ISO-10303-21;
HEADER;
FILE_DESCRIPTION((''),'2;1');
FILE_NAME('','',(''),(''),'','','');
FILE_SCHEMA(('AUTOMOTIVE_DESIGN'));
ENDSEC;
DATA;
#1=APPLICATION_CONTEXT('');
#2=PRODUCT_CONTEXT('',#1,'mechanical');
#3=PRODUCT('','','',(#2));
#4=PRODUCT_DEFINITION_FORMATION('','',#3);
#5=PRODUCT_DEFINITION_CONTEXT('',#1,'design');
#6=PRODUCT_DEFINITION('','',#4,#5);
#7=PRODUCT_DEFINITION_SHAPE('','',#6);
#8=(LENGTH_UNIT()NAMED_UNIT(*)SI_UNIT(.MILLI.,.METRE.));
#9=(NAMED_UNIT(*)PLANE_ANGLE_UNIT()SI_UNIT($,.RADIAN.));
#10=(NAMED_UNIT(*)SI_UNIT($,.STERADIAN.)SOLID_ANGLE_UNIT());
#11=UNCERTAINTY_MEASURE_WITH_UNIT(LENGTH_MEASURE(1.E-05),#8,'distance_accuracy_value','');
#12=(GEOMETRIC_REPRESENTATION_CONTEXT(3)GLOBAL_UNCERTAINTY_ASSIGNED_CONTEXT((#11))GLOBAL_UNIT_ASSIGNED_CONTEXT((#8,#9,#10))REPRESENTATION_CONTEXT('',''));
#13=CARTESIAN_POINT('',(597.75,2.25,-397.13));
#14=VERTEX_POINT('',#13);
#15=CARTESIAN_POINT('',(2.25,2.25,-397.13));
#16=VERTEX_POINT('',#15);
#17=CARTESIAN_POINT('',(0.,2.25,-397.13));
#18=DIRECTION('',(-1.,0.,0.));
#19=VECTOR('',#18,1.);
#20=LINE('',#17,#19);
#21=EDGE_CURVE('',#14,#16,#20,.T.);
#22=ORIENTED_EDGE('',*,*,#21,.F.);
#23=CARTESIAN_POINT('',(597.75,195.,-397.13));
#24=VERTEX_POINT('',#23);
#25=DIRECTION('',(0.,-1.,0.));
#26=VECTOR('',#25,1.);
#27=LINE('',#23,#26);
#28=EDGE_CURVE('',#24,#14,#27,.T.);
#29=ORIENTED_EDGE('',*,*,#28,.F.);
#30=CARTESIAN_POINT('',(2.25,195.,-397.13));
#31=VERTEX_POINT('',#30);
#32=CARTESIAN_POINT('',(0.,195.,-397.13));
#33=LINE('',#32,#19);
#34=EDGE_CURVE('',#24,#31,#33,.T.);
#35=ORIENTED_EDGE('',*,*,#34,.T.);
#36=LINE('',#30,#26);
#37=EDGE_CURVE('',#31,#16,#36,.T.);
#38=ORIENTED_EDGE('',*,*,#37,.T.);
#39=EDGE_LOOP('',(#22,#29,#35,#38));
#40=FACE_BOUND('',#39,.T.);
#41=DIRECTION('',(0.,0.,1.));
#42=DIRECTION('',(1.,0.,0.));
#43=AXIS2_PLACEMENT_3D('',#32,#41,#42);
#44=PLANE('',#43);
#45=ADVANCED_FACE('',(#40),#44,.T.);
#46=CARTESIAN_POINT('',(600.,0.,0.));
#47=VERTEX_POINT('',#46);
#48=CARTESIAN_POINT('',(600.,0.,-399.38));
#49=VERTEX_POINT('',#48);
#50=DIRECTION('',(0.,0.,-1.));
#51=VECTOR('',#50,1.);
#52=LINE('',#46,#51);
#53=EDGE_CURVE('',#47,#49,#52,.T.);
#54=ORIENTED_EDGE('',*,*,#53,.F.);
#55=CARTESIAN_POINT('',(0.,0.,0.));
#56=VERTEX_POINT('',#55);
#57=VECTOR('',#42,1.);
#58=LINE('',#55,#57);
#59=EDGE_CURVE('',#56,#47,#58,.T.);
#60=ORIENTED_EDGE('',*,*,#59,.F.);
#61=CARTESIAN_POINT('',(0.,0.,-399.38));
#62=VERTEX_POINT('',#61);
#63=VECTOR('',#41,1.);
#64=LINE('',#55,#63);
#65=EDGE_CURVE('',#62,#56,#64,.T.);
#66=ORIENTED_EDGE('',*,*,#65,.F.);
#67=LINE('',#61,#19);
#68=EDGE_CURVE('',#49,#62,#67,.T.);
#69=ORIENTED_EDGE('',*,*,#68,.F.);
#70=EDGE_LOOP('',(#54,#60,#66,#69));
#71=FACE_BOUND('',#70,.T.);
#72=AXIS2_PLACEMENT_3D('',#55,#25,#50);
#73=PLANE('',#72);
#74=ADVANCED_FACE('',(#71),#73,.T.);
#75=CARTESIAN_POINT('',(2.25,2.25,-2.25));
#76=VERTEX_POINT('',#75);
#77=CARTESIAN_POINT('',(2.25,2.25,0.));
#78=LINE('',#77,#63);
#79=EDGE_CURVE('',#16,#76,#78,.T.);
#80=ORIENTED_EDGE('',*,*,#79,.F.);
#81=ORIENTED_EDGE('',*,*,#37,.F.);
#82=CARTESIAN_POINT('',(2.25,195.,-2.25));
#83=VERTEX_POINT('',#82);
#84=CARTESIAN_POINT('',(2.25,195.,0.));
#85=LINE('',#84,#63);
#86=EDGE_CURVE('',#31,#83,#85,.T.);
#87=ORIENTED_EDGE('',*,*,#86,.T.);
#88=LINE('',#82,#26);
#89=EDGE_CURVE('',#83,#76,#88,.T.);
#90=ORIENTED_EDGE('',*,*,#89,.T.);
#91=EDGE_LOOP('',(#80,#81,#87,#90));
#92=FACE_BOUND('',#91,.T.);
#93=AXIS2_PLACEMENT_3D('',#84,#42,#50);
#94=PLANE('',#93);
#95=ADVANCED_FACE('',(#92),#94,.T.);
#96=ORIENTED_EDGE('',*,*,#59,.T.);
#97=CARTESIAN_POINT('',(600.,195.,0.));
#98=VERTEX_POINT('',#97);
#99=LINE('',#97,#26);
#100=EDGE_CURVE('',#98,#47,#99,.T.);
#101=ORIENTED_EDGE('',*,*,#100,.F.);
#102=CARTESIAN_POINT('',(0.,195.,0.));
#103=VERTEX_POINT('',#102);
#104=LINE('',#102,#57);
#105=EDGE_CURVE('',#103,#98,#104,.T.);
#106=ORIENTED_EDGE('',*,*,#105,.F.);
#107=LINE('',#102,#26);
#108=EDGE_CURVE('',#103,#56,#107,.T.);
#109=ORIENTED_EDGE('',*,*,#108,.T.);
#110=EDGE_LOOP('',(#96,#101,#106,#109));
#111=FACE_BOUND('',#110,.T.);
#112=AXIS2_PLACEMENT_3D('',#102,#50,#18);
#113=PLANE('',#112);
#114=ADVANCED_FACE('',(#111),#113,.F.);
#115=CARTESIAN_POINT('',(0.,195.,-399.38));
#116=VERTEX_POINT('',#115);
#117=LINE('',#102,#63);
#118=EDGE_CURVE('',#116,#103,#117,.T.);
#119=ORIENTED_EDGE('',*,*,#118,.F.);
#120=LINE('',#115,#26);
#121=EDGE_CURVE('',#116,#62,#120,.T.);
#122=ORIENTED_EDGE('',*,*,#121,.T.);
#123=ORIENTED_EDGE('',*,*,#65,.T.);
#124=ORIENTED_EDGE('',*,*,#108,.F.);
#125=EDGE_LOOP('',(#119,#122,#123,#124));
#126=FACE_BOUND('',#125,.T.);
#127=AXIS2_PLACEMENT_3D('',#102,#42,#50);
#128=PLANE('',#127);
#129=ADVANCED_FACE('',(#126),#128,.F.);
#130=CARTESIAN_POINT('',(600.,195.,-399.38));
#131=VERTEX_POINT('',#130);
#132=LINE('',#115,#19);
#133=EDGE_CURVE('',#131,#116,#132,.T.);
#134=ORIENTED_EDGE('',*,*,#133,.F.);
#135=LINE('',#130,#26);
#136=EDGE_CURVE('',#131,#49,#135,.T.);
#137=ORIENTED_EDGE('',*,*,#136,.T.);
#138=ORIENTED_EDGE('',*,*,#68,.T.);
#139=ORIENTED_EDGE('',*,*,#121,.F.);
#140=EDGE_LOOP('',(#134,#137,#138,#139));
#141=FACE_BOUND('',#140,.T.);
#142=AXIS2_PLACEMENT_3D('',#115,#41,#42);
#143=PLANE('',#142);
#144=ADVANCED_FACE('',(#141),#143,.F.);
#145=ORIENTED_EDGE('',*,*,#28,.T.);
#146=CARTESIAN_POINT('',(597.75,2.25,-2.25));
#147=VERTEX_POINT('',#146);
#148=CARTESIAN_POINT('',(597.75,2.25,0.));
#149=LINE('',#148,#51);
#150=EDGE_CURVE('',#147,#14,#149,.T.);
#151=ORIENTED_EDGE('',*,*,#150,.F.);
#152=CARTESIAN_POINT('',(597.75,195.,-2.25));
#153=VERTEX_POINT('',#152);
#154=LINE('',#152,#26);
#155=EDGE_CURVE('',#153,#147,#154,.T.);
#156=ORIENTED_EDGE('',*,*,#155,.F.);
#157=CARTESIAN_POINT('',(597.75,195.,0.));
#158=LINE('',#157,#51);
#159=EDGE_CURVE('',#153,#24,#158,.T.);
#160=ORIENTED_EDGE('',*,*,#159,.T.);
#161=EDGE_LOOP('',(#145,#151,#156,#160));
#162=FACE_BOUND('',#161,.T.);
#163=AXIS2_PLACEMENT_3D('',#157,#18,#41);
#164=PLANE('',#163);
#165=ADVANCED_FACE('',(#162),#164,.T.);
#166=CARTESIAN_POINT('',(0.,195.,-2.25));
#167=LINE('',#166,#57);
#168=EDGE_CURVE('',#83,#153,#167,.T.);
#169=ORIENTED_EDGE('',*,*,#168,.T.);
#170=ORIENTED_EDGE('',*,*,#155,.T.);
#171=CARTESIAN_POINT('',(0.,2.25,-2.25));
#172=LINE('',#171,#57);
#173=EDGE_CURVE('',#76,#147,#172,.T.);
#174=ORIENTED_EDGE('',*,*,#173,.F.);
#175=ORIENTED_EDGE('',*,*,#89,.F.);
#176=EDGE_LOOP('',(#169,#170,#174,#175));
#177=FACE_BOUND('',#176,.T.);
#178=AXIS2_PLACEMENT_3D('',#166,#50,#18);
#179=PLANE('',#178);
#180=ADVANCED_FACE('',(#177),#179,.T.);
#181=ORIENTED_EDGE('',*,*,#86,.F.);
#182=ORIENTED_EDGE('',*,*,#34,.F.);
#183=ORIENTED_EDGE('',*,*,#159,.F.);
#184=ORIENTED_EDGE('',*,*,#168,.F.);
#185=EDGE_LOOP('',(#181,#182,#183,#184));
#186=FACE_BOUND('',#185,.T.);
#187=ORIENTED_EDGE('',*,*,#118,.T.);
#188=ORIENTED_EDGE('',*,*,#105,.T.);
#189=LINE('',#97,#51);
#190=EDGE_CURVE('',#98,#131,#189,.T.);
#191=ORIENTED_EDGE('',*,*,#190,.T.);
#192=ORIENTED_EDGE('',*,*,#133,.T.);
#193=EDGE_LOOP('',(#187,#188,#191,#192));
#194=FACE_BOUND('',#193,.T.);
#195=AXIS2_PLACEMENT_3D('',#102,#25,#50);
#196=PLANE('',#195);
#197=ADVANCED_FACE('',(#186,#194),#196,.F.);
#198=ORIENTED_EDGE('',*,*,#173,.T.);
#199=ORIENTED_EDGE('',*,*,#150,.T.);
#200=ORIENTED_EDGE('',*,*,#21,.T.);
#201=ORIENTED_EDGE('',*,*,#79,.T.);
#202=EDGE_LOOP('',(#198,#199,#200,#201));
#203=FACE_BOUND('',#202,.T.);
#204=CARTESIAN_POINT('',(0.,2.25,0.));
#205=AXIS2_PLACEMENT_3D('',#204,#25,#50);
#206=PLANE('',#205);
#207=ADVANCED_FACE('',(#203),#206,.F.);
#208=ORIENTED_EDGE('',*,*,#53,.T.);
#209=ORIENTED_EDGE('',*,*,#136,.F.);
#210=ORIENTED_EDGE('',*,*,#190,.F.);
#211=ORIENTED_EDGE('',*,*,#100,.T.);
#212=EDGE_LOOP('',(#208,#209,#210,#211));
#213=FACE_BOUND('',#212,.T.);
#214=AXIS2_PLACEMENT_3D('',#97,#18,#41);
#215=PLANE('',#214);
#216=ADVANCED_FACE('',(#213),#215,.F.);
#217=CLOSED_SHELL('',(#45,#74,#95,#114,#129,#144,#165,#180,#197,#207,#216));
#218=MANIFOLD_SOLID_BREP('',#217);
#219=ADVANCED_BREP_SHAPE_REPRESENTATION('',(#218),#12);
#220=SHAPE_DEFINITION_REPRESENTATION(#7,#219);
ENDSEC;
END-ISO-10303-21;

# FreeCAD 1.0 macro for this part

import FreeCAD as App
import Part
import Sketcher
Q = App.Units.Quantity


def faces_at(feature, points):
    """Names of the faces that lie closest to the given points."""
    faces = feature.Shape.Faces
    near = lambda p: min(range(len(faces)), key=lambda i: faces[i].distToShape(Part.Vertex(*p))[0])
    return sorted({f"Face{near(p) + 1}" for p in points})

doc = App.newDocument("Part")
body = doc.addObject("PartDesign::Body", "Body")

# Sketch on XZ plane
sketch1 = doc.addObject("Sketcher::SketchObject", "Sketch")
body.addObject(sketch1)
sketch1.AttachmentSupport = (doc.XZ_Plane, [""])
sketch1.MapMode = "FlatFace"
sketch1.addGeometry([
    Part.LineSegment(App.Vector(0, -399, 0), App.Vector(0, 0, 0)),
    Part.LineSegment(App.Vector(0, 0, 0), App.Vector(600, 0, 0)),
    Part.LineSegment(App.Vector(600, 0, 0), App.Vector(600, -399, 0)),
    Part.LineSegment(App.Vector(600, -399, 0), App.Vector(0, -399, 0)),
], False)
sketch1.addConstraint([
    Sketcher.Constraint("Coincident", 0, 2, 1, 1),
    Sketcher.Constraint("Coincident", 1, 2, 2, 1),
    Sketcher.Constraint("Coincident", 2, 2, 3, 1),
    Sketcher.Constraint("Coincident", 3, 2, 0, 1),
    Sketcher.Constraint("Vertical", 0),
    Sketcher.Constraint("Horizontal", 1),
    Sketcher.Constraint("Vertical", 2),
    Sketcher.Constraint("Horizontal", 3),
    Sketcher.Constraint("Coincident", 0, 2, -1, 1),
    Sketcher.Constraint("DistanceX", 1, 1, 1, 2, Q("600 mm")),
    Sketcher.Constraint("DistanceY", 0, 1, 0, 2, Q("399.38 mm")),
])
pad1 = doc.addObject("PartDesign::Pad", "Pad")
body.addObject(pad1)
pad1.Profile = sketch1
pad1.Length = 195
pad1.Reversed = True
doc.recompute()

thickness = doc.addObject("PartDesign::Thickness", "Thickness")
body.addObject(thickness)
thickness.Base = (pad1, faces_at(pad1, [(300, 195, -199.69)]))
thickness.Value = 2.25
thickness.Reversed = True
thickness.Join = "Intersection"

doc.recompute()
